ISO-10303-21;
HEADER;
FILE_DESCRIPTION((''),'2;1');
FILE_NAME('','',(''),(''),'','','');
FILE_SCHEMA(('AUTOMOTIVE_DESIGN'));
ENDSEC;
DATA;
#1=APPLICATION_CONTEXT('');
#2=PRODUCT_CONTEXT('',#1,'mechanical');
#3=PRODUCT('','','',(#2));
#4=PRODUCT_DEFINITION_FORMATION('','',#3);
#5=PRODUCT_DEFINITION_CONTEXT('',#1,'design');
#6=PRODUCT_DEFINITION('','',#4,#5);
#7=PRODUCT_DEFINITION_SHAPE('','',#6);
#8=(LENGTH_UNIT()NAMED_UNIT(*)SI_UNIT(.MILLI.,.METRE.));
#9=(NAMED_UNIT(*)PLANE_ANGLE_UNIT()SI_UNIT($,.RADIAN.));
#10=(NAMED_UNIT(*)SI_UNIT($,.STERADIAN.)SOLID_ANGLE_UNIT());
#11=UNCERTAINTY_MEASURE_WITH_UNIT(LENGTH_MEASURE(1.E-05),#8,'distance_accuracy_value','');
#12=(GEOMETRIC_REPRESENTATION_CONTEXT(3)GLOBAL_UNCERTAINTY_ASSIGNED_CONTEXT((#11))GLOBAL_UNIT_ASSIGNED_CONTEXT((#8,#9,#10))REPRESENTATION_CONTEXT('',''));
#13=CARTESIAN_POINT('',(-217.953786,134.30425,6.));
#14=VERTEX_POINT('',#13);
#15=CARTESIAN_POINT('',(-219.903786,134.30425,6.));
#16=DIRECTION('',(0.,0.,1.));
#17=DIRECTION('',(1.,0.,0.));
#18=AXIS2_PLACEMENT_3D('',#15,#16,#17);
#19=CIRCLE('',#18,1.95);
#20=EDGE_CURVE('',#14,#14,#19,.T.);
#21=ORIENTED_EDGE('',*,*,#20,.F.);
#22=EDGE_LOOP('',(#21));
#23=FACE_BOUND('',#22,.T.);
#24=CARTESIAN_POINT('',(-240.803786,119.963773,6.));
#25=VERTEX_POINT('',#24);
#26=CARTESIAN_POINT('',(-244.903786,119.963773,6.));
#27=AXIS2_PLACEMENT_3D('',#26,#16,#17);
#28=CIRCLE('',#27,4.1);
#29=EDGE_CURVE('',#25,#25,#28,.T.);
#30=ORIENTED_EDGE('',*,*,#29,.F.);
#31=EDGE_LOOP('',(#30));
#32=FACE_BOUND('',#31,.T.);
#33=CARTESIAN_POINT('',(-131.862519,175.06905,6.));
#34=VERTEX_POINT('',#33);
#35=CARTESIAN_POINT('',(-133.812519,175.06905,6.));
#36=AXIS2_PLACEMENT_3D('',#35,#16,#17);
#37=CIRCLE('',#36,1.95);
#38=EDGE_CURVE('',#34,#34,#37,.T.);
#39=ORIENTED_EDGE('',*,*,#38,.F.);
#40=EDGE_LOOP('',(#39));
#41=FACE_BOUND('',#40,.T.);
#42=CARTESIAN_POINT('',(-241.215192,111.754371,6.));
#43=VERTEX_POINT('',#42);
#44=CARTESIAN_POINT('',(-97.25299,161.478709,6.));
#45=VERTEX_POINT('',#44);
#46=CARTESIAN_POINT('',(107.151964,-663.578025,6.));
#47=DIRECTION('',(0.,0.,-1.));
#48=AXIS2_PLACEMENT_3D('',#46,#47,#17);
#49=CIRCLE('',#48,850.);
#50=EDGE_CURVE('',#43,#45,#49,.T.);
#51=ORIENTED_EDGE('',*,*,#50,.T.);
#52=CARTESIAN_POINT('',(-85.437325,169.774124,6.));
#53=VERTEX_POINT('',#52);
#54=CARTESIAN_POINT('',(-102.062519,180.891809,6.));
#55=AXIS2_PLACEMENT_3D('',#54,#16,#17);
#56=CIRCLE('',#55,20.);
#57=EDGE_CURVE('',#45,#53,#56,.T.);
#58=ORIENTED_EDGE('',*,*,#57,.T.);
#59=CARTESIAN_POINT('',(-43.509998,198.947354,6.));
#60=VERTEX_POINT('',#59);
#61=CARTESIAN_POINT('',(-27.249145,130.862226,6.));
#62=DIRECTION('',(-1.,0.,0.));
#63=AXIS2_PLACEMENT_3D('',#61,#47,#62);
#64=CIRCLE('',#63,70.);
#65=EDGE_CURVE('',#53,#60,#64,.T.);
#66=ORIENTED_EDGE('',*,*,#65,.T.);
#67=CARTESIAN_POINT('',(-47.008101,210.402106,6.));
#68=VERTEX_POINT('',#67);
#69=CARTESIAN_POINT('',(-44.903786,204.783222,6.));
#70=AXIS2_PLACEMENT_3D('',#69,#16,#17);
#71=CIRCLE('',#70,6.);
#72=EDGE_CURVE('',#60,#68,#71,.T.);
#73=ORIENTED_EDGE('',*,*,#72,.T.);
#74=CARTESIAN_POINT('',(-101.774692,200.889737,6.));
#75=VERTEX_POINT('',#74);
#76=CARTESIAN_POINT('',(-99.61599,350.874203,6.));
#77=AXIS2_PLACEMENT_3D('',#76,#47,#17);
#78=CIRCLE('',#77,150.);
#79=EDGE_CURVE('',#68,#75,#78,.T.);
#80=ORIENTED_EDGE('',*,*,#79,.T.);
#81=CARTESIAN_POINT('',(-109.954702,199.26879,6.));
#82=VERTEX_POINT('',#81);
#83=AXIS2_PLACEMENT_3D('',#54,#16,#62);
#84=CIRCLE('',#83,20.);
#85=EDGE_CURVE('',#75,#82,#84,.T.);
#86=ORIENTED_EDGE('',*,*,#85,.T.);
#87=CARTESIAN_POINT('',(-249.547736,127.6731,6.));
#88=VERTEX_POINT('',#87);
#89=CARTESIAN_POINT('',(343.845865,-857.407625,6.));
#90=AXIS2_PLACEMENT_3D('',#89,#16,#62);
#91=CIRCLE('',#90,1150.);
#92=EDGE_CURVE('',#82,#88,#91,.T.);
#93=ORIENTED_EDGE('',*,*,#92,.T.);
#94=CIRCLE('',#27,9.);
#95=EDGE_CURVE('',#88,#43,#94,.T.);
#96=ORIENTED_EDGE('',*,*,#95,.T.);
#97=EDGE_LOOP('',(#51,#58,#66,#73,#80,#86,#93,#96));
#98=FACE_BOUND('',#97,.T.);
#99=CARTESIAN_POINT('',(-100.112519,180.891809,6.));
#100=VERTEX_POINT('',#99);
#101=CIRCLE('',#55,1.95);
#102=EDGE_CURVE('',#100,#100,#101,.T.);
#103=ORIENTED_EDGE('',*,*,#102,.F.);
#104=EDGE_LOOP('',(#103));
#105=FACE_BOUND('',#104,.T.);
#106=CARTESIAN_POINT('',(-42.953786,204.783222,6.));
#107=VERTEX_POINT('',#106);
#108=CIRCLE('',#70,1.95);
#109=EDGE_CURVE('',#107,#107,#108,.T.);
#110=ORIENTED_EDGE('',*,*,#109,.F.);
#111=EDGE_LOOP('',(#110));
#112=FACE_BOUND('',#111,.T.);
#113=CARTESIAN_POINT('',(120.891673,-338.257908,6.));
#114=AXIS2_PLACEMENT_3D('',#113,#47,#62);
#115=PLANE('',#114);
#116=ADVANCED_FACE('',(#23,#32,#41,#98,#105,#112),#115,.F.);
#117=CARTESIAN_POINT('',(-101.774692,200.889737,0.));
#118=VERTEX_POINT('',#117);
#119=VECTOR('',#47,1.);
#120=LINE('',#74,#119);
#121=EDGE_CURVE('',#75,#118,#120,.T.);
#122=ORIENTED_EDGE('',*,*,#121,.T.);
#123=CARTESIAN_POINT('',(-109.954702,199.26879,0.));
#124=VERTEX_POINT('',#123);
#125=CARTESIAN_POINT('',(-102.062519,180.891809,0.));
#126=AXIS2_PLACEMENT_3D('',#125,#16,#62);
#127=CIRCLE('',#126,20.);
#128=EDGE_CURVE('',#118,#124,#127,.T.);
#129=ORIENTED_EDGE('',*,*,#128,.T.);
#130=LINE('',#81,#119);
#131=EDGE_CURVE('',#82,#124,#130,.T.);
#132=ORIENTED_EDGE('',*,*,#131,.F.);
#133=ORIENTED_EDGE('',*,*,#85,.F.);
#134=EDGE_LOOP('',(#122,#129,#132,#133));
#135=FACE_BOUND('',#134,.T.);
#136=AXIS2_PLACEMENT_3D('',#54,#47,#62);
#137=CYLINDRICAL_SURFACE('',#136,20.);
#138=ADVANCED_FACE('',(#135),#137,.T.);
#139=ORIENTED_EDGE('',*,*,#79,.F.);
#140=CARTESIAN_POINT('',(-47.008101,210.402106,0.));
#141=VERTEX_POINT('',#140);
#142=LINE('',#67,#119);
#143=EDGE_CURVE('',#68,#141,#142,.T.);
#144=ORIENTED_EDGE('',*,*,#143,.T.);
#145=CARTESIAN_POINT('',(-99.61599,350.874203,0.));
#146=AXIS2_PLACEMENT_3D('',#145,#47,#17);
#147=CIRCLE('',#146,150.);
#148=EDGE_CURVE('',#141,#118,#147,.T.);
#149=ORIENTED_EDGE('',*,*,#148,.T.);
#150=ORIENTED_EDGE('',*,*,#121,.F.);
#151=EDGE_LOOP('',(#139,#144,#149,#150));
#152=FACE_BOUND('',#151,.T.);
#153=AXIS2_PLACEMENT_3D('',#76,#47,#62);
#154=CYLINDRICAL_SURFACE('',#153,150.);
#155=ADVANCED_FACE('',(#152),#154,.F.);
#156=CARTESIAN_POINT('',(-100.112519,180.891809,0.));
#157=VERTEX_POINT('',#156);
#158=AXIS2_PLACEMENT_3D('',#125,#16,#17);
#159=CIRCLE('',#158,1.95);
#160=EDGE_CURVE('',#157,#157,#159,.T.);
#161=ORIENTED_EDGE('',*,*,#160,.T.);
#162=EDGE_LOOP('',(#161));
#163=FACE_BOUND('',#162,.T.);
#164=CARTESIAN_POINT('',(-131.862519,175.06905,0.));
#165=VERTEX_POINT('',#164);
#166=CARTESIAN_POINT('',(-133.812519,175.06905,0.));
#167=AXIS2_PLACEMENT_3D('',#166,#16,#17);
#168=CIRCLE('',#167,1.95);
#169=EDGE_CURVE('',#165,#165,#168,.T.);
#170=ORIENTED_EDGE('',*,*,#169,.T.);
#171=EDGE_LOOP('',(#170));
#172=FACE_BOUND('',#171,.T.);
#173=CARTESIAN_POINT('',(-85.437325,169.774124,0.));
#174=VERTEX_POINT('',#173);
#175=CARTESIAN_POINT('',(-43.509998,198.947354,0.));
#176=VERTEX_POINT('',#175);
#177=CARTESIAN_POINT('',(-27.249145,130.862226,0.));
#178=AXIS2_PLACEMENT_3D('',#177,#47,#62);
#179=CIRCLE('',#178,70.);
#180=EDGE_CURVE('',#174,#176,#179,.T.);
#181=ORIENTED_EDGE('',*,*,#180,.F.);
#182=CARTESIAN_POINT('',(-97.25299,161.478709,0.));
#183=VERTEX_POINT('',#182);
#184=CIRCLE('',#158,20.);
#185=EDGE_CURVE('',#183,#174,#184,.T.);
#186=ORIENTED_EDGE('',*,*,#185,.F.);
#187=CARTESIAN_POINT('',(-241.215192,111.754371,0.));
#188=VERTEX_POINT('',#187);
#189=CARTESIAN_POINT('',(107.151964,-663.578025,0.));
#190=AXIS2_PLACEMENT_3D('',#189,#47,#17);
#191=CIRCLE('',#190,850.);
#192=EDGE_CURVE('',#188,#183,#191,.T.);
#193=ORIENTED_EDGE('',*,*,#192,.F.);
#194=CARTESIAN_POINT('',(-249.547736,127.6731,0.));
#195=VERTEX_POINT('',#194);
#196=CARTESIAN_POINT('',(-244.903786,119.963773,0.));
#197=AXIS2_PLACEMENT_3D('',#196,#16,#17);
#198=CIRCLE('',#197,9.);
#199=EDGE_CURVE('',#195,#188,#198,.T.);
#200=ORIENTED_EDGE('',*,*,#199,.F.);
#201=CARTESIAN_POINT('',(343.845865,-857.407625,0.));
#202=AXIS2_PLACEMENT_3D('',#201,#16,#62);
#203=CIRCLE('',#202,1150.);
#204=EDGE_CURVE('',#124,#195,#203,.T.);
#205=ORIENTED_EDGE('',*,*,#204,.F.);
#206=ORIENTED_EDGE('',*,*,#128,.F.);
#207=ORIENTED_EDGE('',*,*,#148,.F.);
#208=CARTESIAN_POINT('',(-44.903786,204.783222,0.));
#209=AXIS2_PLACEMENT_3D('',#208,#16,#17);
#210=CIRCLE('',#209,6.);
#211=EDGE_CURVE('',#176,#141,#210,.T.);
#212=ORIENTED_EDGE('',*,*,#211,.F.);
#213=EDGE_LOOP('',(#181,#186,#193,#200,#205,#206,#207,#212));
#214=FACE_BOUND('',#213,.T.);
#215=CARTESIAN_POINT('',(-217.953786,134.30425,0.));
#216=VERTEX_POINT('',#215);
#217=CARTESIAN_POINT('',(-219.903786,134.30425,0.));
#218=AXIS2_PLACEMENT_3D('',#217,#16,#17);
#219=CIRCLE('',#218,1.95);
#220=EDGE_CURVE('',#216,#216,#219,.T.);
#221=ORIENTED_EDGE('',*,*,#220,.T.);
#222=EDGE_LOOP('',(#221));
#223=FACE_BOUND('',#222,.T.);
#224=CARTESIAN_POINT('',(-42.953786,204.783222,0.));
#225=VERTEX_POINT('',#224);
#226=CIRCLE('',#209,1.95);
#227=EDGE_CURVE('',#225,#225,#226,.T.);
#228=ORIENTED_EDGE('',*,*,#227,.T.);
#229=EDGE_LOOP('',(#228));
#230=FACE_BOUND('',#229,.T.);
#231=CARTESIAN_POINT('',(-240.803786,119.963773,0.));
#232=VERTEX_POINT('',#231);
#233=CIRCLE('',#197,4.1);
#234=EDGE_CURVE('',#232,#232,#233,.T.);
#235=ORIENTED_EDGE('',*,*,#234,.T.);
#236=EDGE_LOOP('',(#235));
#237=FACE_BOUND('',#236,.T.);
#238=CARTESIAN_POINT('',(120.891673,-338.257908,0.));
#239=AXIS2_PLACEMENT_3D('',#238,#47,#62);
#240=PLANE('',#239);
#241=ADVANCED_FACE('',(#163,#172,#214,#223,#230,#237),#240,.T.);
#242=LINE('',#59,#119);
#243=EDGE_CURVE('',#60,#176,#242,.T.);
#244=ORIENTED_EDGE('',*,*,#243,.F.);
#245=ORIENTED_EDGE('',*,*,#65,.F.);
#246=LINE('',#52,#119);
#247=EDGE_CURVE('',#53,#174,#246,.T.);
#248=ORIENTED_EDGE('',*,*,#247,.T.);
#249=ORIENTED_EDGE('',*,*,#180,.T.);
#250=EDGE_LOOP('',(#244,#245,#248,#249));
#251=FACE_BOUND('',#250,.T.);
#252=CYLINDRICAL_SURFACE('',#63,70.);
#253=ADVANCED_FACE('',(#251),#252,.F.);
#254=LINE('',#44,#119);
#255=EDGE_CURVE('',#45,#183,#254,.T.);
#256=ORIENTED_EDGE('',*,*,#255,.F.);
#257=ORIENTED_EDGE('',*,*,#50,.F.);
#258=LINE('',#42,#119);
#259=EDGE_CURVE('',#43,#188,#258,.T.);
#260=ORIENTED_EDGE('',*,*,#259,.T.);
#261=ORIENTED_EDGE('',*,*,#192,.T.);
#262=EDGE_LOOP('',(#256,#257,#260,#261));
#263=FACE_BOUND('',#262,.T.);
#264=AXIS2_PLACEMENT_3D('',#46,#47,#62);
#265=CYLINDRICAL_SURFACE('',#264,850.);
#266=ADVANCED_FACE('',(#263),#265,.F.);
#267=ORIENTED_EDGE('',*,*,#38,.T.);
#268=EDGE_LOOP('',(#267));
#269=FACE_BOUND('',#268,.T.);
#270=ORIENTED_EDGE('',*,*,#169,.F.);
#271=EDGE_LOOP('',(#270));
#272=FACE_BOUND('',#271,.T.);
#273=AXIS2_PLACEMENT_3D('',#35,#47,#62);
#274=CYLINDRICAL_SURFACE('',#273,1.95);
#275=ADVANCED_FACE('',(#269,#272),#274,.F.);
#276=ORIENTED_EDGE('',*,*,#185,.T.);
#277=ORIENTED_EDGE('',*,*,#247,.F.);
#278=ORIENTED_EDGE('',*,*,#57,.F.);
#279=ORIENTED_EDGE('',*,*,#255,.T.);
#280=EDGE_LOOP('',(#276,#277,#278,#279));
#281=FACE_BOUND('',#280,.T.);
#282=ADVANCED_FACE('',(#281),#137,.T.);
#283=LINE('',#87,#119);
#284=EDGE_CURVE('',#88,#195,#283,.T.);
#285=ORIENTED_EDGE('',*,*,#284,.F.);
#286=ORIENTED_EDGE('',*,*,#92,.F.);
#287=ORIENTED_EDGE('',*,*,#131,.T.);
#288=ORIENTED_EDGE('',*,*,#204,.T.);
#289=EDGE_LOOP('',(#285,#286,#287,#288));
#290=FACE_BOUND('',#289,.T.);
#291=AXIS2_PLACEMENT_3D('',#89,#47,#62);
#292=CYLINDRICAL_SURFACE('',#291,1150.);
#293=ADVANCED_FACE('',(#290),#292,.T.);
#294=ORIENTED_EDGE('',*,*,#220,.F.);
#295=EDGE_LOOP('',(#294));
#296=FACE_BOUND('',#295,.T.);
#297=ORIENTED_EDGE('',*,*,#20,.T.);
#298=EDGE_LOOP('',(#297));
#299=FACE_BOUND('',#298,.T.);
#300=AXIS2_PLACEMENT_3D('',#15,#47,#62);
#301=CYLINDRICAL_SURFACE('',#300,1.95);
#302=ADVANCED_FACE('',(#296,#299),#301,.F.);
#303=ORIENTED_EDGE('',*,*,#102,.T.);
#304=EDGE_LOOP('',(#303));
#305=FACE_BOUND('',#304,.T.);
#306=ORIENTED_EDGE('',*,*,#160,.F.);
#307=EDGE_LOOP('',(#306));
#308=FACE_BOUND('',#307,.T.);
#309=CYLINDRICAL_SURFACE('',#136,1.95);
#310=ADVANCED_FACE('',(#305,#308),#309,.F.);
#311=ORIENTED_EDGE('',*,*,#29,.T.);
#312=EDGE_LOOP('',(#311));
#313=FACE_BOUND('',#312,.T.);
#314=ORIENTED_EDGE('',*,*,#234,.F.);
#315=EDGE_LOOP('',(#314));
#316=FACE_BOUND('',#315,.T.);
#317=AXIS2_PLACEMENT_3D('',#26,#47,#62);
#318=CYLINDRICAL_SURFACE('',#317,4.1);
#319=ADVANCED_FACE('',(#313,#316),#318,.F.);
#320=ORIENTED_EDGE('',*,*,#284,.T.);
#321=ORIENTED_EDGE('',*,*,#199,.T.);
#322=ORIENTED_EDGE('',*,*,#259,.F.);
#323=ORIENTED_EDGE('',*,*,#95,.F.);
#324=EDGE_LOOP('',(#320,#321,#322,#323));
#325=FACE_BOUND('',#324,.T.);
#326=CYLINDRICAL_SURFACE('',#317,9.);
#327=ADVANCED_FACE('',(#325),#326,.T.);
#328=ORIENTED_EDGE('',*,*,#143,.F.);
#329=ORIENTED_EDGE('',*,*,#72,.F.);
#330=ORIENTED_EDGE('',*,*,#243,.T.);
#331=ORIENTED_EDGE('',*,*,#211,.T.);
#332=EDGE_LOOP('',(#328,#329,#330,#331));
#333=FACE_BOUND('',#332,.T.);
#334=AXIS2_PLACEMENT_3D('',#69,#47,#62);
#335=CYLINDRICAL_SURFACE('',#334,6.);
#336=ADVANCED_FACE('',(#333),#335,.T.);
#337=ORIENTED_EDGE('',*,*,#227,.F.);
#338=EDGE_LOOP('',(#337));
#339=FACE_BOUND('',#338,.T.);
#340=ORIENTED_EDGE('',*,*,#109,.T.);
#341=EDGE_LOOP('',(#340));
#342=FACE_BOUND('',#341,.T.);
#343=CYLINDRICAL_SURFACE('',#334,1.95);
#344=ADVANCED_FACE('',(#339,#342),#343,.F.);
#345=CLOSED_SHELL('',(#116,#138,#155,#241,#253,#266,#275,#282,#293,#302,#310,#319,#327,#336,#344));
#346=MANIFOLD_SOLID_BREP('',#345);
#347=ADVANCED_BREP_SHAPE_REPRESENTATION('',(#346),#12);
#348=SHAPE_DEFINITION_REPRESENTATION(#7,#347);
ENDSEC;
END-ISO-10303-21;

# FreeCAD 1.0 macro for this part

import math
import FreeCAD as App
import Part
import Sketcher
Q = App.Units.Quantity

doc = App.newDocument("Part")
body = doc.addObject("PartDesign::Body", "Body")

sketch1 = doc.addObject("Sketcher::SketchObject", "Sketch")
body.addObject(sketch1)
sketch1.AttachmentSupport = (doc.XY_Plane, [""])
sketch1.MapMode = "FlatFace"
sketch1.addGeometry(Part.ArcOfCircle(Part.Circle(App.Vector(-244.9, 120, 0), App.Vector(0, 0, 1), 9), math.radians(121), math.radians(294)), False)
sketch1.addGeometry(Part.ArcOfCircle(Part.Circle(App.Vector(107.2, -663.6, 0), App.Vector(0, 0, 1), 850), math.radians(103.91), math.radians(114.2)), False)
sketch1.addGeometry(Part.ArcOfCircle(Part.Circle(App.Vector(-102.1, 180.9, 0), App.Vector(0, 0, 1), 20), math.radians(-76), math.radians(-34)), False)
sketch1.addGeometry(Part.ArcOfCircle(Part.Circle(App.Vector(-27.2, 130.9, 0), App.Vector(0, 0, 1), 70), math.radians(103), math.radians(146)), False)
sketch1.addGeometry(Part.ArcOfCircle(Part.Circle(App.Vector(-44.9, 204.8, 0), App.Vector(0, 0, 1), 6), math.radians(-77), math.radians(111)), False)
sketch1.addGeometry(Part.ArcOfCircle(Part.Circle(App.Vector(-99.6, 350.9, 0), App.Vector(0, 0, 1), 150), math.radians(-91), math.radians(-69)), False)
sketch1.addGeometry(Part.ArcOfCircle(Part.Circle(App.Vector(-102.1, 180.9, 0), App.Vector(0, 0, 1), 20), math.radians(89), math.radians(113)), False)
sketch1.addGeometry(Part.ArcOfCircle(Part.Circle(App.Vector(343.8, -857.4, 0), App.Vector(0, 0, 1), 1150), math.radians(113.24), math.radians(121.06)), False)
sketch1.addGeometry(Part.Circle(App.Vector(-244.9, 120, 0), App.Vector(0, 0, 1), 4.1), False)
sketch1.addGeometry(Part.Circle(App.Vector(-219.9, 134.3, 0), App.Vector(0, 0, 1), 1.9), False)
sketch1.addGeometry(Part.Circle(App.Vector(-133.8, 175.1, 0), App.Vector(0, 0, 1), 1.9), False)
sketch1.addGeometry(Part.Circle(App.Vector(-102.1, 180.9, 0), App.Vector(0, 0, 1), 1.9), False)
sketch1.addGeometry(Part.Circle(App.Vector(-44.9, 204.8, 0), App.Vector(0, 0, 1), 1.9), False)
sketch1.addConstraint(Sketcher.Constraint("Tangent", 0, 2, 1, 2))
sketch1.addConstraint(Sketcher.Constraint("Tangent", 1, 1, 2, 1))
sketch1.addConstraint(Sketcher.Constraint("Tangent", 2, 2, 3, 2))
sketch1.addConstraint(Sketcher.Constraint("Tangent", 3, 1, 4, 1))
sketch1.addConstraint(Sketcher.Constraint("Tangent", 4, 2, 5, 2))
sketch1.addConstraint(Sketcher.Constraint("Tangent", 5, 1, 6, 1))
sketch1.addConstraint(Sketcher.Constraint("Tangent", 6, 2, 7, 1))
sketch1.addConstraint(Sketcher.Constraint("Tangent", 7, 2, 0, 1))
sketch1.addConstraint(Sketcher.Constraint("Coincident", 6, 3, 2, 3))
sketch1.addConstraint(Sketcher.Constraint("Coincident", 8, 3, 0, 3))
sketch1.addConstraint(Sketcher.Constraint("Coincident", 11, 3, 2, 3))
sketch1.addConstraint(Sketcher.Constraint("Coincident", 12, 3, 4, 3))
sketch1.addConstraint(Sketcher.Constraint("Equal", 2, 6))
sketch1.addConstraint(Sketcher.Constraint("Equal", 9, 10))
sketch1.addConstraint(Sketcher.Constraint("Equal", 10, 11))
sketch1.addConstraint(Sketcher.Constraint("Equal", 11, 12))
sketch1.addConstraint(Sketcher.Constraint("Radius", 0, Q("9 mm")))
sketch1.addConstraint(Sketcher.Constraint("Radius", 1, Q("850 mm")))
sketch1.addConstraint(Sketcher.Constraint("Radius", 2, Q("20 mm")))
sketch1.addConstraint(Sketcher.Constraint("Radius", 3, Q("70 mm")))
sketch1.addConstraint(Sketcher.Constraint("Radius", 4, Q("6 mm")))
sketch1.addConstraint(Sketcher.Constraint("Radius", 5, Q("150 mm")))
sketch1.addConstraint(Sketcher.Constraint("Radius", 7, Q("1150 mm")))
sketch1.addConstraint(Sketcher.Constraint("Diameter", 8, Q("8.2 mm")))
sketch1.addConstraint(Sketcher.Constraint("Diameter", 9, Q("3.9 mm")))
sketch1.addConstraint(Sketcher.Constraint("DistanceX", 0, 3, 4, 3, Q("200 mm")))
sketch1.addConstraint(Sketcher.Constraint("DistanceX", 0, 3, 9, 3, Q("25 mm")))
sketch1.addConstraint(Sketcher.Constraint("DistanceX", 3, 1, -1, 1, Q("43.509998 mm")))
sketch1.addConstraint(Sketcher.Constraint("DistanceX", 10, 3, 2, 3, Q("31.75 mm")))
sketch1.addConstraint(Sketcher.Constraint("DistanceX", 4, 2, -1, 1, Q("47.008101 mm")))
sketch1.addConstraint(Sketcher.Constraint("DistanceX", 1, 3, 7, 3, Q("236.693901 mm")))
sketch1.addConstraint(Sketcher.Constraint("DistanceY", 7, 3, 1, 3, Q("193.829599 mm")))
sketch1.addConstraint(Sketcher.Constraint("DistanceY", 9, 3, 10, 3, Q("40.7648 mm")))
sketch1.addConstraint(Sketcher.Constraint("DistanceY", -1, 1, 2, 3, Q("180.891809 mm")))
sketch1.addConstraint(Sketcher.Constraint("DistanceY", -1, 1, 9, 3, Q("134.30425 mm")))
pad1 = doc.addObject("PartDesign::Pad", "Pad")
body.addObject(pad1)
pad1.Profile = sketch1
pad1.Length = 6

doc.recompute()
